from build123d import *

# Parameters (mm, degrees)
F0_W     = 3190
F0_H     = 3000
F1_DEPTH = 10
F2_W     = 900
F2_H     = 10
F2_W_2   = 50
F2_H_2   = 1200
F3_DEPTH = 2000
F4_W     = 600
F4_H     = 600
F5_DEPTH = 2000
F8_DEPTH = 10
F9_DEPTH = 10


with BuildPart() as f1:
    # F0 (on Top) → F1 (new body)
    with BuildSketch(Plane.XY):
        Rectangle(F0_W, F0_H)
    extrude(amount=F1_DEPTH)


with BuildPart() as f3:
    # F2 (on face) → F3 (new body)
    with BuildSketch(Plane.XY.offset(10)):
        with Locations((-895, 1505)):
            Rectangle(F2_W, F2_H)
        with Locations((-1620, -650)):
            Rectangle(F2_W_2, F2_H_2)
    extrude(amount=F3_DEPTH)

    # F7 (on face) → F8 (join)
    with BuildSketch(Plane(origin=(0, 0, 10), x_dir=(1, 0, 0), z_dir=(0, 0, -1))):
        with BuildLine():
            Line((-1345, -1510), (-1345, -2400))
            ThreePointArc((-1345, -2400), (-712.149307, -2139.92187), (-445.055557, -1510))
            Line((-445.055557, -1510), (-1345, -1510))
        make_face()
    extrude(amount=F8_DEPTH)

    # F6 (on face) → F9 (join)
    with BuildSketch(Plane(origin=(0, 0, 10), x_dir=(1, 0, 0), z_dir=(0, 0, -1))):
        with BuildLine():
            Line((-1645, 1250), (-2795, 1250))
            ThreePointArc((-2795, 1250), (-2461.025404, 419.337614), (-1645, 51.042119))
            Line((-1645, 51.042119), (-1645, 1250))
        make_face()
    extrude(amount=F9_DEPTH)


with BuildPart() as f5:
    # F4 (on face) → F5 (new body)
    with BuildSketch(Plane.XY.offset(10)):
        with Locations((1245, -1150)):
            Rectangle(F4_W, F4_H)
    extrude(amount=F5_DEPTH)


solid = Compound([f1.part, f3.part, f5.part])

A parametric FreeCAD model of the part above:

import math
import FreeCAD as App
import Part
import Sketcher
from FreeCAD import Vector
Q = App.Units.Quantity

doc = App.newDocument("Part")
body = doc.addObject("PartDesign::Body", "Body")

sketch1 = doc.addObject("Sketcher::SketchObject", "Sketch")
body.addObject(sketch1)
sketch1.AttachmentSupport = (doc.XY_Plane, [""])
sketch1.MapMode = "FlatFace"
sketch1.addGeometry(Part.LineSegment(Vector(-1595, 1500, 0), Vector(-1595, -1500, 0)), False)
sketch1.addGeometry(Part.LineSegment(Vector(-1595, -1500, 0), Vector(1595, -1500, 0)), False)
sketch1.addGeometry(Part.LineSegment(Vector(1595, -1500, 0), Vector(1595, 1500, 0)), False)
sketch1.addGeometry(Part.LineSegment(Vector(1595, 1500, 0), Vector(-1595, 1500, 0)), False)
sketch1.addConstraint(Sketcher.Constraint("Coincident", 0, 2, 1, 1))
sketch1.addConstraint(Sketcher.Constraint("Coincident", 1, 2, 2, 1))
sketch1.addConstraint(Sketcher.Constraint("Coincident", 2, 2, 3, 1))
sketch1.addConstraint(Sketcher.Constraint("Coincident", 3, 2, 0, 1))
sketch1.addConstraint(Sketcher.Constraint("Vertical", 0))
sketch1.addConstraint(Sketcher.Constraint("Horizontal", 1))
sketch1.addConstraint(Sketcher.Constraint("Vertical", 2))
sketch1.addConstraint(Sketcher.Constraint("Horizontal", 3))
sketch1.addConstraint(Sketcher.Constraint("Symmetric", 0, 2, 2, 2, -1, 1))
sketch1.addConstraint(Sketcher.Constraint("DistanceX", 1, 1, 1, 2, Q("3190 mm")))
sketch1.addConstraint(Sketcher.Constraint("DistanceY", 0, 2, 0, 1, Q("3000 mm")))
pad1 = doc.addObject("PartDesign::Pad", "Pad")
body.addObject(pad1)
pad1.Profile = sketch1
pad1.Length = 10
body2 = doc.addObject("PartDesign::Body", "Body001")
body2.AllowCompound = True

sketch2 = doc.addObject("Sketcher::SketchObject", "Sketch001")
body2.addObject(sketch2)
sketch2.AttachmentSupport = (doc.getObject("XY_Plane001"), [""])
sketch2.MapMode = "FlatFace"
sketch2.AttachmentOffset = App.Placement(Vector(0, 0, 10), App.Rotation())
sketch2.addGeometry(Part.LineSegment(Vector(-1345, 1510, 0), Vector(-1345, 1500, 0)), False)
sketch2.addGeometry(Part.LineSegment(Vector(-1345, 1500, 0), Vector(-445, 1500, 0)), False)
sketch2.addGeometry(Part.LineSegment(Vector(-445, 1500, 0), Vector(-445, 1510, 0)), False)
sketch2.addGeometry(Part.LineSegment(Vector(-445, 1510, 0), Vector(-1345, 1510, 0)), False)
sketch2.addGeometry(Part.LineSegment(Vector(-1645, -50, 0), Vector(-1645, -1250, 0)), False)
sketch2.addGeometry(Part.LineSegment(Vector(-1645, -1250, 0), Vector(-1595, -1250, 0)), False)
sketch2.addGeometry(Part.LineSegment(Vector(-1595, -1250, 0), Vector(-1595, -50, 0)), False)
sketch2.addGeometry(Part.LineSegment(Vector(-1595, -50, 0), Vector(-1645, -50, 0)), False)
sketch2.addConstraint(Sketcher.Constraint("Coincident", 0, 2, 1, 1))
sketch2.addConstraint(Sketcher.Constraint("Coincident", 1, 2, 2, 1))
sketch2.addConstraint(Sketcher.Constraint("Coincident", 2, 2, 3, 1))
sketch2.addConstraint(Sketcher.Constraint("Coincident", 3, 2, 0, 1))
sketch2.addConstraint(Sketcher.Constraint("Coincident", 4, 2, 5, 1))
sketch2.addConstraint(Sketcher.Constraint("Coincident", 5, 2, 6, 1))
sketch2.addConstraint(Sketcher.Constraint("Coincident", 6, 2, 7, 1))
sketch2.addConstraint(Sketcher.Constraint("Coincident", 7, 2, 4, 1))
sketch2.addConstraint(Sketcher.Constraint("Vertical", 0))
sketch2.addConstraint(Sketcher.Constraint("Horizontal", 1))
sketch2.addConstraint(Sketcher.Constraint("Vertical", 2))
sketch2.addConstraint(Sketcher.Constraint("Horizontal", 3))
sketch2.addConstraint(Sketcher.Constraint("Vertical", 4))
sketch2.addConstraint(Sketcher.Constraint("Horizontal", 5))
sketch2.addConstraint(Sketcher.Constraint("Vertical", 6))
sketch2.addConstraint(Sketcher.Constraint("Horizontal", 7))
sketch2.addConstraint(Sketcher.Constraint("DistanceX", 1, 1, 1, 2, Q("900 mm")))
sketch2.addConstraint(Sketcher.Constraint("DistanceX", 5, 1, 5, 2, Q("50 mm")))
sketch2.addConstraint(Sketcher.Constraint("DistanceY", 0, 2, 0, 1, Q("10 mm")))
sketch2.addConstraint(Sketcher.Constraint("DistanceY", 4, 2, 4, 1, Q("1200 mm")))
sketch2.addConstraint(Sketcher.Constraint("DistanceX", 0, 2, -1, 1, Q("1345 mm")))
sketch2.addConstraint(Sketcher.Constraint("DistanceY", -1, 1, 0, 2, Q("1500 mm")))
sketch2.addConstraint(Sketcher.Constraint("DistanceX", 4, 2, -1, 1, Q("1645 mm")))
sketch2.addConstraint(Sketcher.Constraint("DistanceY", 4, 2, -1, 1, Q("1250 mm")))
pad2 = doc.addObject("PartDesign::Pad", "Pad001")
body2.addObject(pad2)
pad2.Profile = sketch2
pad2.Length = 2000

sketch3 = doc.addObject("Sketcher::SketchObject", "Sketch002")
body2.addObject(sketch3)
sketch3.AttachmentSupport = (doc.getObject("XY_Plane001"), [""])
sketch3.MapMode = "FlatFace"
sketch3.AttachmentOffset = App.Placement(Vector(0, 0, 10), App.Rotation())
sketch3.addGeometry(Part.LineSegment(Vector(-1345, 1510, 0), Vector(-1345, 2400, 0)), False)
sketch3.addGeometry(Part.ArcOfCircle(Part.Circle(Vector(-1345, 1500, 0), Vector(0, 0, 1), 900), math.radians(1), math.radians(90)), False)
sketch3.addGeometry(Part.LineSegment(Vector(-445, 1510, 0), Vector(-1345, 1510, 0)), False)
sketch3.addConstraint(Sketcher.Constraint("Coincident", 0, 2, 1, 2))
sketch3.addConstraint(Sketcher.Constraint("Coincident", 1, 1, 2, 1))
sketch3.addConstraint(Sketcher.Constraint("Coincident", 2, 2, 0, 1))
sketch3.addConstraint(Sketcher.Constraint("Vertical", 0))
sketch3.addConstraint(Sketcher.Constraint("Horizontal", 2))
sketch3.addConstraint(Sketcher.Constraint("Vertical", 1, 3, 0, 2))
sketch3.addConstraint(Sketcher.Constraint("Radius", 1, Q("900.000001 mm")))
sketch3.addConstraint(Sketcher.Constraint("DistanceY", 0, 1, 0, 2, Q("890 mm")))
sketch3.addConstraint(Sketcher.Constraint("DistanceX", 1, 3, -1, 1, Q("1345.000001 mm")))
sketch3.addConstraint(Sketcher.Constraint("DistanceY", -1, 1, 1, 3, Q("1499.999999 mm")))
pad3 = doc.addObject("PartDesign::Pad", "Pad002")
body2.addObject(pad3)
pad3.Profile = sketch3
pad3.Length = 10
pad3.Reversed = True

sketch4 = doc.addObject("Sketcher::SketchObject", "Sketch003")
body2.addObject(sketch4)
sketch4.AttachmentSupport = (doc.getObject("XY_Plane001"), [""])
sketch4.MapMode = "FlatFace"
sketch4.AttachmentOffset = App.Placement(Vector(0, 0, 10), App.Rotation())
sketch4.addGeometry(Part.LineSegment(Vector(-1645, -1250, 0), Vector(-2795, -1250, 0)), False)
sketch4.addGeometry(Part.ArcOfCircle(Part.Circle(Vector(-1595, -1250, 0), Vector(0, 0, 1), 1200), math.radians(92), math.radians(180)), False)
sketch4.addGeometry(Part.LineSegment(Vector(-1645, -51, 0), Vector(-1645, -1250, 0)), False)
sketch4.addConstraint(Sketcher.Constraint("Coincident", 0, 2, 1, 2))
sketch4.addConstraint(Sketcher.Constraint("Coincident", 1, 1, 2, 1))
sketch4.addConstraint(Sketcher.Constraint("Coincident", 2, 2, 0, 1))
sketch4.addConstraint(Sketcher.Constraint("Horizontal", 0))
sketch4.addConstraint(Sketcher.Constraint("Vertical", 2))
sketch4.addConstraint(Sketcher.Constraint("Horizontal", 1, 3, 0, 2))
sketch4.addConstraint(Sketcher.Constraint("Radius", 1, Q("1200 mm")))
sketch4.addConstraint(Sketcher.Constraint("DistanceX", 0, 2, 0, 1, Q("1150 mm")))
sketch4.addConstraint(Sketcher.Constraint("DistanceX", 1, 3, -1, 1, Q("1595 mm")))
sketch4.addConstraint(Sketcher.Constraint("DistanceY", 1, 3, -1, 1, Q("1250 mm")))
pad4 = doc.addObject("PartDesign::Pad", "Pad003")
body2.addObject(pad4)
pad4.Profile = sketch4
pad4.Length = 10
pad4.Reversed = True
body3 = doc.addObject("PartDesign::Body", "Body002")

sketch5 = doc.addObject("Sketcher::SketchObject", "Sketch004")
body3.addObject(sketch5)
sketch5.AttachmentSupport = (doc.getObject("XY_Plane002"), [""])
sketch5.MapMode = "FlatFace"
sketch5.AttachmentOffset = App.Placement(Vector(0, 0, 10), App.Rotation())
sketch5.addGeometry(Part.LineSegment(Vector(945, -850, 0), Vector(945, -1450, 0)), False)
sketch5.addGeometry(Part.LineSegment(Vector(945, -1450, 0), Vector(1545, -1450, 0)), False)
sketch5.addGeometry(Part.LineSegment(Vector(1545, -1450, 0), Vector(1545, -850, 0)), False)
sketch5.addGeometry(Part.LineSegment(Vector(1545, -850, 0), Vector(945, -850, 0)), False)
sketch5.addConstraint(Sketcher.Constraint("Coincident", 0, 2, 1, 1))
sketch5.addConstraint(Sketcher.Constraint("Coincident", 1, 2, 2, 1))
sketch5.addConstraint(Sketcher.Constraint("Coincident", 2, 2, 3, 1))
sketch5.addConstraint(Sketcher.Constraint("Coincident", 3, 2, 0, 1))
sketch5.addConstraint(Sketcher.Constraint("Vertical", 0))
sketch5.addConstraint(Sketcher.Constraint("Horizontal", 1))
sketch5.addConstraint(Sketcher.Constraint("Vertical", 2))
sketch5.addConstraint(Sketcher.Constraint("Horizontal", 3))
sketch5.addConstraint(Sketcher.Constraint("Equal", 3, 0))
sketch5.addConstraint(Sketcher.Constraint("DistanceX", 1, 1, 1, 2, Q("600 mm")))
sketch5.addConstraint(Sketcher.Constraint("DistanceX", -1, 1, 0, 2, Q("945 mm")))
sketch5.addConstraint(Sketcher.Constraint("DistanceY", 0, 2, -1, 1, Q("1450 mm")))
pad5 = doc.addObject("PartDesign::Pad", "Pad004")
body3.addObject(pad5)
pad5.Profile = sketch5
pad5.Length = 2000

doc.recompute()
